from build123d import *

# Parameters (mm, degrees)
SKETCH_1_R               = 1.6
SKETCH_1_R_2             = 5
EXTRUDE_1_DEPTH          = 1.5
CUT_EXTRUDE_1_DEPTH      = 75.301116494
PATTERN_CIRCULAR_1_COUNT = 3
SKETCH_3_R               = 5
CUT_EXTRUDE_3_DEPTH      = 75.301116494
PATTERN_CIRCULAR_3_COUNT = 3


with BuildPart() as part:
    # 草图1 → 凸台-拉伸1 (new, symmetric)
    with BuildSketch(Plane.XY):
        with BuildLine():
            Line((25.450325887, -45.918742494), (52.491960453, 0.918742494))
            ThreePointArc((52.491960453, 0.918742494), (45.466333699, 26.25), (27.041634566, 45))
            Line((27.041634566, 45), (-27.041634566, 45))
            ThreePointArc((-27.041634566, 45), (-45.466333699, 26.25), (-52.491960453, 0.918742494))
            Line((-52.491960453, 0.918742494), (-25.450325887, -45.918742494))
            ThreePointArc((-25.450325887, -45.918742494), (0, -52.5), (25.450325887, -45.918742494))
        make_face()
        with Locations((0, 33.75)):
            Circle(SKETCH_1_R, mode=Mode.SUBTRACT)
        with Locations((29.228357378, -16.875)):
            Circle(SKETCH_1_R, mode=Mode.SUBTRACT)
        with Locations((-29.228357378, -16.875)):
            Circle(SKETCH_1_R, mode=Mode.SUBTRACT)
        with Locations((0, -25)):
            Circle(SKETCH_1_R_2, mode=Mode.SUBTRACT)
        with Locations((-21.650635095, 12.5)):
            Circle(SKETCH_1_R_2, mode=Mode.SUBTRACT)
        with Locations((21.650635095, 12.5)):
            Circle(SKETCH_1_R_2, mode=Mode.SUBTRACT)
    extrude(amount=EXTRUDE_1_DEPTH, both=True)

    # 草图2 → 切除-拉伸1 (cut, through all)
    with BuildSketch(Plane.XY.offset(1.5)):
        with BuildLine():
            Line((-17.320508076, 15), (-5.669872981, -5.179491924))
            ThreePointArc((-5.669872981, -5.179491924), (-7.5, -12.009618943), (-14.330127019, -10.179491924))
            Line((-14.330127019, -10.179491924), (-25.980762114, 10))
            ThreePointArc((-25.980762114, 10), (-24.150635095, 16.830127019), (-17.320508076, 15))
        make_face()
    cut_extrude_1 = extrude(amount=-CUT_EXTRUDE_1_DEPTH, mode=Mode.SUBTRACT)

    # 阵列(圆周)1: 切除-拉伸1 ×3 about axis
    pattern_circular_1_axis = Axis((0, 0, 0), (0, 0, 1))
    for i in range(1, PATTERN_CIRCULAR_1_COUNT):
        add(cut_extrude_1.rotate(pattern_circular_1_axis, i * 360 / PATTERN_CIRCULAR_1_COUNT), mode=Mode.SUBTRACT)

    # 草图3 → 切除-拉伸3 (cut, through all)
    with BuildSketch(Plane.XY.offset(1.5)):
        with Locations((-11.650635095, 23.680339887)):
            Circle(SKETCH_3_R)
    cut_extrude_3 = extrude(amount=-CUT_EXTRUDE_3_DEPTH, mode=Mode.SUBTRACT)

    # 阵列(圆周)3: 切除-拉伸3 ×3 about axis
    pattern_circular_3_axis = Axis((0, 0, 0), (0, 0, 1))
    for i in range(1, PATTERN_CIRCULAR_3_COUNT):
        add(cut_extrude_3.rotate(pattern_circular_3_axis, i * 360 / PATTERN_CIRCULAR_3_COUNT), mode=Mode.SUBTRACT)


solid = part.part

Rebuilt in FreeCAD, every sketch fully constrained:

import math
import FreeCAD as App
import Part
import Sketcher

V = App.Vector
Q = App.Units.Quantity

doc = App.newDocument("Part")
params = doc.addObject("Spreadsheet::Sheet", "Params")
for row, (alias, value) in enumerate([
    ("sketch1_diameter", "10 mm"),
    ("sketch1_diameter2", "3.2 mm"),
    ("sketch1_radius", "52.5 mm"),
    ("pad1_length", "3 mm"),
    ("sketch2_radius", "5 mm"),
    ("sketch3_diameter", "10 mm"),
], start=1):
    params.set(f"A{row}", alias)
    params.set(f"B{row}", "=" + value)
    params.setAlias(f"B{row}", alias)

body = doc.addObject("PartDesign::Body", "Body")

# Sketch on XY plane
sketch1 = body.newObject("Sketcher::SketchObject", "Sketch")
sketch1.AttachmentSupport = (doc.getObject("XY_Plane"), [""])
sketch1.MapMode = "FlatFace"
sketch1.addGeometry([
    Part.LineSegment(V(25.5, -45.9, 0), V(52.5, 0.9, 0)),  # 0
    Part.ArcOfCircle(Part.Circle(V(0, 0, 0), V(0, 0, 1), 52.5), math.radians(1), math.radians(59)),  # 1
    Part.LineSegment(V(27, 45, 0), V(-27, 45, 0)),  # 2
    Part.ArcOfCircle(Part.Circle(V(0, 0, 0), V(0, 0, 1), 52.5), math.radians(121), math.radians(179)),  # 3
    Part.LineSegment(V(-52.5, 0.9, 0), V(-25.5, -45.9, 0)),  # 4
    Part.ArcOfCircle(Part.Circle(V(0, 0, 0), V(0, 0, 1), 52.5), math.radians(-119), math.radians(-61)),  # 5
    Part.Circle(V(-29.2, -16.9, 0), V(0, 0, 1), 1.6),  # 6
    Part.Circle(V(0, -25, 0), V(0, 0, 1), 5),  # 7
    Part.Circle(V(29.2, -16.9, 0), V(0, 0, 1), 1.6),  # 8
    Part.Circle(V(-21.7, 12.5, 0), V(0, 0, 1), 5),  # 9
    Part.Circle(V(21.7, 12.5, 0), V(0, 0, 1), 5),  # 10
    Part.Circle(V(0, 33.8, 0), V(0, 0, 1), 1.6),  # 11
], False)
sketch1.addConstraint([
    Sketcher.Constraint("Coincident", 0, 2, 1, 1),
    Sketcher.Constraint("Coincident", 1, 2, 2, 1),
    Sketcher.Constraint("Coincident", 2, 2, 3, 1),
    Sketcher.Constraint("Coincident", 3, 2, 4, 1),
    Sketcher.Constraint("Coincident", 4, 2, 5, 1),
    Sketcher.Constraint("Coincident", 5, 2, 0, 1),
    Sketcher.Constraint("Horizontal", 2),
    Sketcher.Constraint("Coincident", 1, 3, -1, 1),
    Sketcher.Constraint("Coincident", 3, 3, -1, 1),
    Sketcher.Constraint("Coincident", 5, 3, -1, 1),
    Sketcher.Constraint("Equal", 1, 3),
    Sketcher.Constraint("Equal", 3, 5),
    Sketcher.Constraint("Equal", 6, 8),
    Sketcher.Constraint("Equal", 7, 9),
    Sketcher.Constraint("Equal", 9, 10),
    Sketcher.Constraint("Equal", 8, 11),
    Sketcher.Constraint("Symmetric", 6, 3, 8, 3, -2),
    Sketcher.Constraint("Symmetric", 9, 3, 10, 3, -2),
    Sketcher.Constraint("PointOnObject", 7, 3, -2),
    Sketcher.Constraint("PointOnObject", 11, 3, -2),
    Sketcher.Constraint("Horizontal", 0, 2, 3, 2),
    Sketcher.Constraint("Horizontal", 4, 2, 5, 2),
    Sketcher.Constraint("Diameter", 7, 10.0),
    Sketcher.Constraint("Diameter", 6, 3.2),
    Sketcher.Constraint("Radius", 1, 52.5),
    Sketcher.Constraint("Angle", 0, Q("60 deg")),
    Sketcher.Constraint("DistanceY", 7, 3, -1, 1, 25.0),
    Sketcher.Constraint("DistanceY", -1, 1, 1, 2, 45.0),
    Sketcher.Constraint("DistanceY", -1, 1, 9, 3, 12.5),
    Sketcher.Constraint("DistanceY", -1, 1, 11, 3, 33.75),
    Sketcher.Constraint("DistanceY", 6, 3, -1, 1, 16.875),
    Sketcher.Constraint("DistanceX", 10, 3, 1, 2, 5.390999),
    Sketcher.Constraint("Distance", 0, 54.083269),
    Sketcher.Constraint("DistanceX", 6, 3, 4, 2, 3.778031),
])
sketch1.setExpression("Constraints[22]", "Params.sketch1_diameter")
sketch1.setExpression("Constraints[23]", "Params.sketch1_diameter2")
sketch1.setExpression("Constraints[24]", "Params.sketch1_radius")
pad1 = body.newObject("PartDesign::Pad", "Pad")
pad1.Profile = sketch1
pad1.setExpression("Length", "Params.pad1_length")
pad1.Midplane = True

# Sketch on XY plane
sketch2 = body.newObject("Sketcher::SketchObject", "Sketch001")
sketch2.AttachmentSupport = (doc.getObject("XY_Plane"), [""])
sketch2.MapMode = "FlatFace"
sketch2.AttachmentOffset = App.Placement(V(0, 0, 1.5), App.Rotation())
sketch2.addGeometry([
    Part.LineSegment(V(-6, -5, 0), V(-17, 15, 0)),
    Part.ArcOfCircle(Part.Circle(V(-22, 12, 0), V(0, 0, 1), 5), math.radians(30), math.radians(210)),
    Part.LineSegment(V(-26, 10, 0), V(-14, -10, 0)),
    Part.ArcOfCircle(Part.Circle(V(-10, -8, 0), V(0, 0, 1), 5), math.radians(-150), math.radians(30)),
], False)
sketch2.addConstraint([
    Sketcher.Constraint("Tangent", 0, 2, 1, 1),
    Sketcher.Constraint("Tangent", 1, 2, 2, 1),
    Sketcher.Constraint("Tangent", 2, 2, 3, 1),
    Sketcher.Constraint("Tangent", 3, 2, 0, 1),
    Sketcher.Constraint("Equal", 1, 3),
    Sketcher.Constraint("Radius", 1, 5.0),
    Sketcher.Constraint("Angle", 0, Q("120 deg")),
    Sketcher.Constraint("DistanceX", 3, 3, -1, 1, 10.0),
    Sketcher.Constraint("DistanceY", -1, 1, 0, 2, 15.0),
    Sketcher.Constraint("Distance", 0, 23.30127),
])
sketch2.setExpression("Constraints[5]", "Params.sketch2_radius")
pocket1 = body.newObject("PartDesign::Pocket", "Pocket")
pocket1.Profile = sketch2
pocket1.Type = "ThroughAll"
doc.recompute()

polarpattern = body.newObject("PartDesign::PolarPattern", "PolarPattern")
polarpattern.Originals = [pocket1]
polarpattern.Axis = (doc.getObject("Z_Axis"), [""])
polarpattern.Angle = 360
polarpattern.Occurrences = 3
body.Tip = polarpattern

# Sketch on XY plane
sketch3 = body.newObject("Sketcher::SketchObject", "Sketch002")
sketch3.AttachmentSupport = (doc.getObject("XY_Plane"), [""])
sketch3.MapMode = "FlatFace"
sketch3.AttachmentOffset = App.Placement(V(0, 0, 1.5), App.Rotation())
sketch3.addGeometry(Part.Circle(V(-12, 24, 0), V(0, 0, 1), 5), False)
sketch3.addConstraint([
    Sketcher.Constraint("Diameter", 0, 10.0),
    Sketcher.Constraint("DistanceY", -1, 1, 0, 3, 23.68034),
    Sketcher.Constraint("DistanceX", 0, 3, -1, 1, 11.650635),
])
sketch3.setExpression("Constraints[0]", "Params.sketch3_diameter")
pocket2 = body.newObject("PartDesign::Pocket", "Pocket001")
pocket2.Profile = sketch3
pocket2.Type = "ThroughAll"
doc.recompute()

polarpattern2 = body.newObject("PartDesign::PolarPattern", "PolarPattern001")
polarpattern2.Originals = [pocket2]
polarpattern2.Axis = (doc.getObject("Z_Axis"), [""])
polarpattern2.Angle = 360
polarpattern2.Occurrences = 3
body.Tip = polarpattern2

doc.recompute()
